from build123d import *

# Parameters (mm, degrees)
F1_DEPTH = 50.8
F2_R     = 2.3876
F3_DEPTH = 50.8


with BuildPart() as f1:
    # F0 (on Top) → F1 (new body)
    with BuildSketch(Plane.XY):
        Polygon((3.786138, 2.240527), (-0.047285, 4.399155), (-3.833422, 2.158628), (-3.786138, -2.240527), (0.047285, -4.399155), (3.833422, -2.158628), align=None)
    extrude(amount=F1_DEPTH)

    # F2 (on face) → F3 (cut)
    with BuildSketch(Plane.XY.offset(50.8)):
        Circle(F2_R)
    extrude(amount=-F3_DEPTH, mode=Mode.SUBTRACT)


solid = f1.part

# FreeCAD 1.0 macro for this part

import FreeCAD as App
import Part
import Sketcher

V = App.Vector
Q = App.Units.Quantity


def add_polygon(sketch, points):
    """Adds a closed chain of lines whose ends are joined by coincident constraints."""
    first, n = sketch.GeometryCount, len(points)
    for a, b in zip(points, points[1:] + points[:1]):
        sketch.addGeometry(Part.LineSegment(App.Vector(*a, 0), App.Vector(*b, 0)), False)
    for i in range(n):
        sketch.addConstraint(Sketcher.Constraint("Coincident", first + i, 2, first + (i + 1) % n, 1))

doc = App.newDocument("Part")
body = doc.addObject("PartDesign::Body", "Body")

# Sketch on XY plane
sketch1 = body.newObject("Sketcher::SketchObject", "Sketch")
sketch1.AttachmentSupport = (doc.getObject("XY_Plane"), [""])
sketch1.MapMode = "FlatFace"
add_polygon(sketch1, [(3.786138, 2.240527), (-0.047285, 4.399155), (-3.833422, 2.158628), (-3.786138, -2.240527), (0.047285, -4.399155), (3.833422, -2.158628)])  # lines 0-5
sketch1.addConstraint([
    Sketcher.Constraint("DistanceY", 2, 2, 4, 2, 0.081899),
    Sketcher.Constraint("DistanceY", 1, 2, 5, 2, 0.081899),
    Sketcher.Constraint("Distance", 0, 4.39941),
    Sketcher.Constraint("Distance", 1, 4.399408),
    Sketcher.Constraint("Distance", 2, 4.399409),
    Sketcher.Constraint("Distance", 3, 4.39941),
    Sketcher.Constraint("Distance", 4, 4.399408),
    Sketcher.Constraint("Distance", 5, 4.399409),
    Sketcher.Constraint("DistanceY", -1, 1, 1, 2, 2.158628),
    Sketcher.Constraint("DistanceY", 4, 2, -1, 1, 2.158628),
    Sketcher.Constraint("DistanceY", 3, 2, 2, 2, 2.158628),
    Sketcher.Constraint("DistanceX", 0, 2, -1, 1, 0.047285),
])
pad1 = body.newObject("PartDesign::Pad", "Pad")
pad1.Profile = sketch1
pad1.Length = Q("2 in")

# Sketch on XY plane
sketch2 = body.newObject("Sketcher::SketchObject", "Sketch001")
sketch2.AttachmentSupport = (doc.getObject("XY_Plane"), [""])
sketch2.MapMode = "FlatFace"
sketch2.AttachmentOffset = App.Placement(V(0, 0, 2 * 25.4), App.Rotation())
sketch2.addGeometry(Part.Circle(V(0, 0, 0), V(0, 0, 1), 2.4), False)
sketch2.addConstraint([
    Sketcher.Constraint("Coincident", 0, 3, -1, 1),
    Sketcher.Constraint("Diameter", 0, Q("0.188 in")),
])
pocket1 = body.newObject("PartDesign::Pocket", "Pocket")
pocket1.Profile = sketch2
pocket1.Length = Q("2 in")

doc.recompute()
